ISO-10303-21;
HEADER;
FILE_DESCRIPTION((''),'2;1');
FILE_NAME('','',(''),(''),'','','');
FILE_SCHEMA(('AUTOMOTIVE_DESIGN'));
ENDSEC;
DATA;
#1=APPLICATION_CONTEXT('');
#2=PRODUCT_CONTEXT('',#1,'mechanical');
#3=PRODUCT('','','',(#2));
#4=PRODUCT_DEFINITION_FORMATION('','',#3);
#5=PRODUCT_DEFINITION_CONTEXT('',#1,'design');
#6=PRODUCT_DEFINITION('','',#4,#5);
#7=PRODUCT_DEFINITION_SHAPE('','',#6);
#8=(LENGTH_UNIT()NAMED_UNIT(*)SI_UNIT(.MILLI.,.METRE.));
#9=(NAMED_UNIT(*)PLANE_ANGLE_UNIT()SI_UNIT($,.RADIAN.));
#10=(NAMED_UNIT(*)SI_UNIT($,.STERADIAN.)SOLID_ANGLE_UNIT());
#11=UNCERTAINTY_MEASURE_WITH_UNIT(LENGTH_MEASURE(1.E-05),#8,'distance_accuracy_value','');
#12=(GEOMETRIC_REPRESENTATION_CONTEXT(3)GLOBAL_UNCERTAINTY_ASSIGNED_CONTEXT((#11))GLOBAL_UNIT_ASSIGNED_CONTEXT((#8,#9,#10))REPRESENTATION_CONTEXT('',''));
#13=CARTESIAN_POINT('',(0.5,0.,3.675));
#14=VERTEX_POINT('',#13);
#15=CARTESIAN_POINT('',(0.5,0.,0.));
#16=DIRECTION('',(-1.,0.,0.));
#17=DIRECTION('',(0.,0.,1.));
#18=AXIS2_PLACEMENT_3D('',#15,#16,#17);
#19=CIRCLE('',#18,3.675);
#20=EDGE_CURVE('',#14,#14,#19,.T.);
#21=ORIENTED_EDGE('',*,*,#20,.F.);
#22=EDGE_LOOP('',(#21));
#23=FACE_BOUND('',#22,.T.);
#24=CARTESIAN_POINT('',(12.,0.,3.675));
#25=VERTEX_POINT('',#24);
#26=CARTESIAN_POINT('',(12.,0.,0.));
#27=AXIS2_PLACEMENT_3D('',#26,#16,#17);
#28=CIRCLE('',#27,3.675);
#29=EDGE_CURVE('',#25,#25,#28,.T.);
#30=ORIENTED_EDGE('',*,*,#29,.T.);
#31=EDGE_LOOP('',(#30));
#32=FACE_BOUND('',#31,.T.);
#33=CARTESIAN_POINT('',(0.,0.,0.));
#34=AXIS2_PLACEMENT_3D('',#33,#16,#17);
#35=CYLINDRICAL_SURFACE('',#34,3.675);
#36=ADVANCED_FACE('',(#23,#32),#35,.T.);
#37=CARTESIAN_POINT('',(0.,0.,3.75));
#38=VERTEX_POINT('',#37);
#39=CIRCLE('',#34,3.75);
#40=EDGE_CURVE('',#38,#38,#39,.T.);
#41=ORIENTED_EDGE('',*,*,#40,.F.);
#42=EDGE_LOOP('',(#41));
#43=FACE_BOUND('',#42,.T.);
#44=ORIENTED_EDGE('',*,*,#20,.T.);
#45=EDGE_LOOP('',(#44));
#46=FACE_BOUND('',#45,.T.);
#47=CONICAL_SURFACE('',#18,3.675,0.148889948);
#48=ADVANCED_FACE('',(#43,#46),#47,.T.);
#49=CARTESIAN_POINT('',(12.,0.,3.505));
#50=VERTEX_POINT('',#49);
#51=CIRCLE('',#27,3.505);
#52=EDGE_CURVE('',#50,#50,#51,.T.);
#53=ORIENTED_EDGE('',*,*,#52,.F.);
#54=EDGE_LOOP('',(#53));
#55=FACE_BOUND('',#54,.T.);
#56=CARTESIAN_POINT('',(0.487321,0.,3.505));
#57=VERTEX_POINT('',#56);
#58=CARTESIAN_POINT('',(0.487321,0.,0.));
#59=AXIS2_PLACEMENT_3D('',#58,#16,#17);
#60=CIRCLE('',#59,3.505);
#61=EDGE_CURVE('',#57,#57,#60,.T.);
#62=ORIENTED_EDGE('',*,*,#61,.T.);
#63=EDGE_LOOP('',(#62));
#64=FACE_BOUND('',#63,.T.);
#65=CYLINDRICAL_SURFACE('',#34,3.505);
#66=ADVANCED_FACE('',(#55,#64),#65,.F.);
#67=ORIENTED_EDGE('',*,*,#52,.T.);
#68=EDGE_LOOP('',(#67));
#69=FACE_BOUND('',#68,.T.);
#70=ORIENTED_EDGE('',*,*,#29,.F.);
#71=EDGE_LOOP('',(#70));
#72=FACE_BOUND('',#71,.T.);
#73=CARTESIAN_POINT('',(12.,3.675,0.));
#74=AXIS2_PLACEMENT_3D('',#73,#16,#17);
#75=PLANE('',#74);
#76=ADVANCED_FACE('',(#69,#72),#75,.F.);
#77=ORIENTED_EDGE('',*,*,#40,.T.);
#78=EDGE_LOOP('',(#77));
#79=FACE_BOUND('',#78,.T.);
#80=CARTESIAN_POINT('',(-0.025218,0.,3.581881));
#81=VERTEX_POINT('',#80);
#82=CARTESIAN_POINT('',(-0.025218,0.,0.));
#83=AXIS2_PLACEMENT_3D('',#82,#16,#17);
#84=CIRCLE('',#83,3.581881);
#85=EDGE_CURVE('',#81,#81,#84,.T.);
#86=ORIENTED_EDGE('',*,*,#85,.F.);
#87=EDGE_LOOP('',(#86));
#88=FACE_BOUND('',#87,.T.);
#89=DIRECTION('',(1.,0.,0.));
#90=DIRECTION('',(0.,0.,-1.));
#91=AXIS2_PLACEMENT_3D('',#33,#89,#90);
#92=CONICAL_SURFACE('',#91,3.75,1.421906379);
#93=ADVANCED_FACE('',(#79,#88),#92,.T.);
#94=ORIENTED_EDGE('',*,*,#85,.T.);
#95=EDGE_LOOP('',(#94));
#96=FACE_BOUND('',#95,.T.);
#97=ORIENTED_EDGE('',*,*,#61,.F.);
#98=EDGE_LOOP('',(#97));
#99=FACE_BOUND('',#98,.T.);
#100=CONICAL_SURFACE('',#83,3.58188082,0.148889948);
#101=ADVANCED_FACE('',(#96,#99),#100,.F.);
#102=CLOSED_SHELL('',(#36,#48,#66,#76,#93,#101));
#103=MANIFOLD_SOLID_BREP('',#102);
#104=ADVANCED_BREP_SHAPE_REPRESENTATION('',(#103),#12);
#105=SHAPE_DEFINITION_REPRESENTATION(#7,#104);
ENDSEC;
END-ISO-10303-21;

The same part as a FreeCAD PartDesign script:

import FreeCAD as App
import Part
import Sketcher


def add_polygon(sketch, points):
    """Adds a closed chain of lines whose ends are joined by coincident constraints."""
    first, n = sketch.GeometryCount, len(points)
    for a, b in zip(points, points[1:] + points[:1]):
        sketch.addGeometry(Part.LineSegment(App.Vector(*a, 0), App.Vector(*b, 0)), False)
    for i in range(n):
        sketch.addConstraint(Sketcher.Constraint("Coincident", first + i, 2, first + (i + 1) % n, 1))

doc = App.newDocument("Part")
body = doc.addObject("PartDesign::Body", "Body")

# Sketch on XY plane
sketch1 = body.newObject("Sketcher::SketchObject", "Sketch")
sketch1.AttachmentSupport = (doc.getObject("XY_Plane"), [""])
sketch1.MapMode = "FlatFace"
add_polygon(sketch1, [(0.5, 3.67), (0, 3.75), (-0.03, 3.58), (0.49, 3.5), (12, 3.5), (12, 3.67)])  # lines 0-5
sketch1.addConstraint(Sketcher.Constraint("Horizontal", 3))
sketch1.addConstraint(Sketcher.Constraint("Vertical", 4))
sketch1.addConstraint(Sketcher.Constraint("Horizontal", 5))
sketch1.addConstraint(Sketcher.Constraint("PointOnObject", 0, 2, -2))
sketch1.addConstraint(Sketcher.Constraint("Perpendicular", 0, 1))
sketch1.addConstraint(Sketcher.Constraint("Perpendicular", 1, 2))
sketch1.addConstraint(Sketcher.Constraint("DistanceX", 5, 2, 5, 1, 11.5))
sketch1.addConstraint(Sketcher.Constraint("DistanceX", -1, 1, 3, 2, 12.0))
sketch1.addConstraint(Sketcher.Constraint("DistanceY", 4, 1, 4, 2, 0.17))
sketch1.addConstraint(Sketcher.Constraint("Distance", 1, 0.17))
sketch1.addConstraint(Sketcher.Constraint("DistanceY", -1, 1, 0, 2, 3.75))
sketch1.addConstraint(Sketcher.Constraint("DistanceY", -1, 1, 2, 2, 3.505))
revolution = body.newObject("PartDesign::Revolution", "Revolution")
revolution.Profile = sketch1
revolution.ReferenceAxis = (sketch1, ["H_Axis"])
revolution.Angle = 360

doc.recompute()
